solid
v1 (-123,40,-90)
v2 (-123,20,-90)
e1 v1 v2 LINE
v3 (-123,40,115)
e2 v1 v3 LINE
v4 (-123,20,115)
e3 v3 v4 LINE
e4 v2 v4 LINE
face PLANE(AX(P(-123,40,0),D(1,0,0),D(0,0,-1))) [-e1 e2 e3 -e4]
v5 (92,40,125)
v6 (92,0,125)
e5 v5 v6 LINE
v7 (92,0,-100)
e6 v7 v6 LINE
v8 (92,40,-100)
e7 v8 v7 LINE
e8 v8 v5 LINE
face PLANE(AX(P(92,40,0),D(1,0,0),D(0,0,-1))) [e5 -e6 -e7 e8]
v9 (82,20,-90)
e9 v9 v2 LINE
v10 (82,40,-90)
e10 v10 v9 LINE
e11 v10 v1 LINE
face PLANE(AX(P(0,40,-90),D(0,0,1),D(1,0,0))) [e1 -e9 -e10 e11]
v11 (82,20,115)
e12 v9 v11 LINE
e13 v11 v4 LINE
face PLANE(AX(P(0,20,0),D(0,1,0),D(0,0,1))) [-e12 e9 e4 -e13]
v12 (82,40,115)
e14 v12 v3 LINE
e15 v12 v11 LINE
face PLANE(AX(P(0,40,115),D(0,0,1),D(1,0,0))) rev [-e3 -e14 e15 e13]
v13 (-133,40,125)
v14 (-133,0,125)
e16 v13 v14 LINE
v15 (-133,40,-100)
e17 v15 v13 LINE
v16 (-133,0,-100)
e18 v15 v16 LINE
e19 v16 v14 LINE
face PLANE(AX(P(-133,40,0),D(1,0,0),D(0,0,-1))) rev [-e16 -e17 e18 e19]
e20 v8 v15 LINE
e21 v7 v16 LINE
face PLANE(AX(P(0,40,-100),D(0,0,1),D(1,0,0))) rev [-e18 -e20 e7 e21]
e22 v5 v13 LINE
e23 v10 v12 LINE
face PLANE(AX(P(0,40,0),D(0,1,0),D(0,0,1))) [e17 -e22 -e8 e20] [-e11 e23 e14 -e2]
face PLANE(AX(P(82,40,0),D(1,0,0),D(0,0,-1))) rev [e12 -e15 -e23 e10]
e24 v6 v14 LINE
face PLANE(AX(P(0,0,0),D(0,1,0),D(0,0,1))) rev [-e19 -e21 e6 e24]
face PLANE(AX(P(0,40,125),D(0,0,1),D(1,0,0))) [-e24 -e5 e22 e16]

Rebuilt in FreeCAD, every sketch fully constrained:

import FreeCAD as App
import Part
import Sketcher

V = App.Vector
Q = App.Units.Quantity


def add_polygon(sketch, points):
    """Adds a closed chain of lines whose ends are joined by coincident constraints."""
    first, n = sketch.GeometryCount, len(points)
    for a, b in zip(points, points[1:] + points[:1]):
        sketch.addGeometry(Part.LineSegment(App.Vector(*a, 0), App.Vector(*b, 0)), False)
    for i in range(n):
        sketch.addConstraint(Sketcher.Constraint("Coincident", first + i, 2, first + (i + 1) % n, 1))

doc = App.newDocument("Part")
body = doc.addObject("PartDesign::Body", "Body")

sketch1 = body.newObject("Sketcher::SketchObject", "Sketch")
sketch1.AttachmentSupport = (doc.getObject("XZ_Plane"), [""])
sketch1.MapMode = "FlatFace"
add_polygon(sketch1, [(-133, -100), (-133, 125), (92, 125), (92, -100)])
add_polygon(sketch1, [(82, 115), (-123, 115), (-123, -90), (82, -90)])
sketch1.addConstraint([
    Sketcher.Constraint("Vertical", 0),
    Sketcher.Constraint("Horizontal", 1),
    Sketcher.Constraint("Vertical", 2),
    Sketcher.Constraint("Horizontal", 3),
    Sketcher.Constraint("Horizontal", 4),
    Sketcher.Constraint("Vertical", 5),
    Sketcher.Constraint("Horizontal", 6),
    Sketcher.Constraint("Vertical", 7),
    Sketcher.Constraint("Equal", 3, 0),
    Sketcher.Constraint("Equal", 6, 5),
    Sketcher.Constraint("DistanceX", 1, 1, 1, 2, Q("225 mm")),
    Sketcher.Constraint("DistanceX", 4, 2, 4, 1, Q("205 mm")),
    Sketcher.Constraint("DistanceX", 0, 2, -1, 1, Q("133 mm")),
    Sketcher.Constraint("DistanceY", -1, 1, 0, 2, Q("125 mm")),
    Sketcher.Constraint("DistanceX", 4, 2, -1, 1, Q("123 mm")),
    Sketcher.Constraint("DistanceY", -1, 1, 4, 2, Q("115 mm")),
])
pad1 = body.newObject("PartDesign::Pad", "Pad")
pad1.Profile = sketch1
pad1.Length = 40
pad1.Reversed = True

sketch2 = body.newObject("Sketcher::SketchObject", "Sketch001")
sketch2.AttachmentSupport = (doc.getObject("XZ_Plane"), [""])
sketch2.MapMode = "FlatFace"
add_polygon(sketch2, [(-123, -90), (-123, 115), (82, 115), (82, -90)])
sketch2.addConstraint([
    Sketcher.Constraint("Vertical", 0),
    Sketcher.Constraint("Horizontal", 1),
    Sketcher.Constraint("Vertical", 2),
    Sketcher.Constraint("Horizontal", 3),
    Sketcher.Constraint("Equal", 3, 0),
    Sketcher.Constraint("DistanceX", 1, 1, 1, 2, Q("205 mm")),
    Sketcher.Constraint("DistanceX", 0, 2, -1, 1, Q("123 mm")),
    Sketcher.Constraint("DistanceY", -1, 1, 0, 2, Q("115 mm")),
])
pad2 = body.newObject("PartDesign::Pad", "Pad001")
pad2.Profile = sketch2
pad2.Length = 20
pad2.Reversed = True

doc.recompute()
